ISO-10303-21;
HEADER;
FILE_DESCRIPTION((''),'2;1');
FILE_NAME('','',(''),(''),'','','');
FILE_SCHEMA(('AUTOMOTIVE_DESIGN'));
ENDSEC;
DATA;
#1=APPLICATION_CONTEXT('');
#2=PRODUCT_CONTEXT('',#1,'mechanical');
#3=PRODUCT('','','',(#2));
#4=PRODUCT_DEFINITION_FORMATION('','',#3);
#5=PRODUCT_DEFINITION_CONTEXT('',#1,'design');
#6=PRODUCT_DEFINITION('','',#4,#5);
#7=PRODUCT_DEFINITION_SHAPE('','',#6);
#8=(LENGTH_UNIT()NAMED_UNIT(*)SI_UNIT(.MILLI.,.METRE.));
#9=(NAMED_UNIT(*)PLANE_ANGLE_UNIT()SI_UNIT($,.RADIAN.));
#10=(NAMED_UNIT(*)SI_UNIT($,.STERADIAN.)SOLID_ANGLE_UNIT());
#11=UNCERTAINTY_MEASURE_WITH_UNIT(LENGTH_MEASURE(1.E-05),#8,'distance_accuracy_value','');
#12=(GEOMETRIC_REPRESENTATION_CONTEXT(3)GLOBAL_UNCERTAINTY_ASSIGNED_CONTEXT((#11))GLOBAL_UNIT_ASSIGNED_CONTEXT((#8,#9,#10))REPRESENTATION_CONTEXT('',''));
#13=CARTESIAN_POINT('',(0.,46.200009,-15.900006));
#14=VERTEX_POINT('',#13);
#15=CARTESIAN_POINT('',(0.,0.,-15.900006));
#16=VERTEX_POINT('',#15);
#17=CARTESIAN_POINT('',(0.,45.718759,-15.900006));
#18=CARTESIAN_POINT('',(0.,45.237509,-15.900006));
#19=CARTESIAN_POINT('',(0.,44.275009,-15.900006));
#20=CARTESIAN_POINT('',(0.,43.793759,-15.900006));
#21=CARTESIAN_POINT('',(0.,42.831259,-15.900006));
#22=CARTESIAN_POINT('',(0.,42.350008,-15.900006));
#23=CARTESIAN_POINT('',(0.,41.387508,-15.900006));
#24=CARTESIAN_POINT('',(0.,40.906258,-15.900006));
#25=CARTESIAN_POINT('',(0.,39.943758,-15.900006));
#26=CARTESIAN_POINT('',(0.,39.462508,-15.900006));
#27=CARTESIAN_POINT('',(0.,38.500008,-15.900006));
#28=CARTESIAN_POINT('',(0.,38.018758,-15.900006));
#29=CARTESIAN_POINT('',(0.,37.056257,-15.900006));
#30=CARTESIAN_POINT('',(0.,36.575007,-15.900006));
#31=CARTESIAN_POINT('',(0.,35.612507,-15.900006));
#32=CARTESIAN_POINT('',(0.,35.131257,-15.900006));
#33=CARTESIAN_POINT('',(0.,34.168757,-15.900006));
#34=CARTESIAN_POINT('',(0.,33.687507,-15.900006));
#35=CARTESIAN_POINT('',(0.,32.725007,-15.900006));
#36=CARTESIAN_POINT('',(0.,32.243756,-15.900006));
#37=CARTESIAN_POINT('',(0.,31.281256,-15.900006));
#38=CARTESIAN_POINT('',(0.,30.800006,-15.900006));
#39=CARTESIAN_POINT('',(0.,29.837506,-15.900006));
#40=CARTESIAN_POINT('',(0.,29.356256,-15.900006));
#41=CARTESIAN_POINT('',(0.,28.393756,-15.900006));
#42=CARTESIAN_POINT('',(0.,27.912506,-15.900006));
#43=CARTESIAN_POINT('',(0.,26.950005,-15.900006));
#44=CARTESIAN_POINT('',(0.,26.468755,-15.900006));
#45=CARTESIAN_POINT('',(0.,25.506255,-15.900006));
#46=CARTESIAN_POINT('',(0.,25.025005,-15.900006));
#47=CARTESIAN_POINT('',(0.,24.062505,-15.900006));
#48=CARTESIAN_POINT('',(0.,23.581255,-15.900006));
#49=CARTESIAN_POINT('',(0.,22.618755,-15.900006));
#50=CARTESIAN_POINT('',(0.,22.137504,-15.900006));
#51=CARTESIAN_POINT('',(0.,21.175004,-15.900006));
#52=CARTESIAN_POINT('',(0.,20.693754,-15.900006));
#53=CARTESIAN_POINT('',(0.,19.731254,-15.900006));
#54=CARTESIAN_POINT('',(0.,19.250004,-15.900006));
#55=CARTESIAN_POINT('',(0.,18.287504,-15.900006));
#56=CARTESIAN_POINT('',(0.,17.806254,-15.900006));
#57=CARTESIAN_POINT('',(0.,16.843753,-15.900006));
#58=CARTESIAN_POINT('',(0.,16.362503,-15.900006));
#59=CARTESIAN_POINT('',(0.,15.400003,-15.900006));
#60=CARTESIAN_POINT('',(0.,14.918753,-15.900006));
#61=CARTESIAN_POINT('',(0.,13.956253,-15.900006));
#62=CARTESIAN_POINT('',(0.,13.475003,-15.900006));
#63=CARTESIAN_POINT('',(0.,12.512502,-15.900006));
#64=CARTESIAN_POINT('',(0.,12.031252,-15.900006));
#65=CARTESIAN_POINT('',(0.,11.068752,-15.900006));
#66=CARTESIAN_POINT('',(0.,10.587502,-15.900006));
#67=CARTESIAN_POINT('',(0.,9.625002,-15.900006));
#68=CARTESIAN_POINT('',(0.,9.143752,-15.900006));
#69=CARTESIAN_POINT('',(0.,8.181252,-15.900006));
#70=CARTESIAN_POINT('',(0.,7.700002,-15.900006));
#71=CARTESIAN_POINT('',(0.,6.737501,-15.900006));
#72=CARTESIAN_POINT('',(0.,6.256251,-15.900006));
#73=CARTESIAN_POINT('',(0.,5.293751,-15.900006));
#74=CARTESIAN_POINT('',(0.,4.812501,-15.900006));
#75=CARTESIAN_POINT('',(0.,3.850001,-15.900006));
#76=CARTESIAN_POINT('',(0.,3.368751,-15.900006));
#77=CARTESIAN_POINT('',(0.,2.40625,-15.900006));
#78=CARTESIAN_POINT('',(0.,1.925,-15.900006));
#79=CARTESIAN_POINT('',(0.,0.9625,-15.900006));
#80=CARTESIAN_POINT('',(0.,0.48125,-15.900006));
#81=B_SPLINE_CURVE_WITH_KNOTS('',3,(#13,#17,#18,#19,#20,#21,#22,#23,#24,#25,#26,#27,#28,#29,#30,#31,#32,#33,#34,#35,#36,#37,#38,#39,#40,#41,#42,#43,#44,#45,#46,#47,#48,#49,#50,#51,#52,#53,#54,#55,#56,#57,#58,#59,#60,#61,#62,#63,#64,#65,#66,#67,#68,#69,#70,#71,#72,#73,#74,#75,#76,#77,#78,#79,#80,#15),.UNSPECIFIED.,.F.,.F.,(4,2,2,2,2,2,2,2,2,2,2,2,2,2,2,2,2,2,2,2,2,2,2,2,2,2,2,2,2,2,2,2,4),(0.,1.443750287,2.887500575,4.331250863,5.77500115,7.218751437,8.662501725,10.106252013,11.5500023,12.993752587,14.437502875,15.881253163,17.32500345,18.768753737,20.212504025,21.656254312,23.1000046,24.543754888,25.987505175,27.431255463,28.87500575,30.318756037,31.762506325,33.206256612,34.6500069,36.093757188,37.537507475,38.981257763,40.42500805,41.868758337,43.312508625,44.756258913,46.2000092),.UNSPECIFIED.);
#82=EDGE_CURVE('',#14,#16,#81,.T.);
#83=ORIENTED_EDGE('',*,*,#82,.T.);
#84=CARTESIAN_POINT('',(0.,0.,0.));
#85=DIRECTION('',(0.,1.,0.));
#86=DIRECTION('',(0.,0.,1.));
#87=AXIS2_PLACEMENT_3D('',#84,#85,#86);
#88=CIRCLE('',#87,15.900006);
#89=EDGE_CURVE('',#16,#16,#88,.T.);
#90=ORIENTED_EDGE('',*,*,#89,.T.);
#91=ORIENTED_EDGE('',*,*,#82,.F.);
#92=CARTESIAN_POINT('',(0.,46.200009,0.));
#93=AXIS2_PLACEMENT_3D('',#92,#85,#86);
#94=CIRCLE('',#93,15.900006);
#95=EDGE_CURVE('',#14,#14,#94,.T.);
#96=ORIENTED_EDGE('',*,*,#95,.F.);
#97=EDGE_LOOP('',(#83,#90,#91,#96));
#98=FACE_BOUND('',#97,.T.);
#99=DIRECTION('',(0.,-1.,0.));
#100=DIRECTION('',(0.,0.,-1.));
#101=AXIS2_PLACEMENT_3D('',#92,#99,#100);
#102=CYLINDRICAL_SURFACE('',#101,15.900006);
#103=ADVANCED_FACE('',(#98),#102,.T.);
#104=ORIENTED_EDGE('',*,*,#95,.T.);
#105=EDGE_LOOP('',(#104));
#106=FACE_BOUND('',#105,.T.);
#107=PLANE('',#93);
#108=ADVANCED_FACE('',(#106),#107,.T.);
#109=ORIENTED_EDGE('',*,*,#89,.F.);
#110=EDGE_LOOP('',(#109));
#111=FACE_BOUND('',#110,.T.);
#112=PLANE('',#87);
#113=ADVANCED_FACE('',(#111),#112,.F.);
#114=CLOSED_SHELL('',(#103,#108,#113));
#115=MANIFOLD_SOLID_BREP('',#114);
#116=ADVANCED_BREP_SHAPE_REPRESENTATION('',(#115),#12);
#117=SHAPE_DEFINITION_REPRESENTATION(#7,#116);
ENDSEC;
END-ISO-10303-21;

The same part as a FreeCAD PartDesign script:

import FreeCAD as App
import Part
import Sketcher
from FreeCAD import Vector

doc = App.newDocument("Part")
params = doc.addObject("Spreadsheet::Sheet", "Params")
for row, (alias, value) in enumerate([
    ("pad1_length", "46.200009 mm"),
], start=1):
    params.set(f"A{row}", alias)
    params.set(f"B{row}", "=" + value)
    params.setAlias(f"B{row}", alias)

body = doc.addObject("PartDesign::Body", "Body")

sketch1 = body.newObject("Sketcher::SketchObject", "Sketch")
sketch1.AttachmentSupport = (doc.getObject("XZ_Plane"), [""])
sketch1.MapMode = "FlatFace"
sketch1.addGeometry(Part.Circle(Vector(0, 0, 0), Vector(0, 0, 1), 16), False)
sketch1.addConstraint([
    Sketcher.Constraint("Coincident", 0, 3, -1, 1),
    Sketcher.Constraint("Diameter", 0, 31.800013),
])
pad1 = body.newObject("PartDesign::Pad", "Pad")
pad1.Profile = sketch1
pad1.setExpression("Length", "Params.pad1_length")
pad1.Reversed = True

doc.recompute()
